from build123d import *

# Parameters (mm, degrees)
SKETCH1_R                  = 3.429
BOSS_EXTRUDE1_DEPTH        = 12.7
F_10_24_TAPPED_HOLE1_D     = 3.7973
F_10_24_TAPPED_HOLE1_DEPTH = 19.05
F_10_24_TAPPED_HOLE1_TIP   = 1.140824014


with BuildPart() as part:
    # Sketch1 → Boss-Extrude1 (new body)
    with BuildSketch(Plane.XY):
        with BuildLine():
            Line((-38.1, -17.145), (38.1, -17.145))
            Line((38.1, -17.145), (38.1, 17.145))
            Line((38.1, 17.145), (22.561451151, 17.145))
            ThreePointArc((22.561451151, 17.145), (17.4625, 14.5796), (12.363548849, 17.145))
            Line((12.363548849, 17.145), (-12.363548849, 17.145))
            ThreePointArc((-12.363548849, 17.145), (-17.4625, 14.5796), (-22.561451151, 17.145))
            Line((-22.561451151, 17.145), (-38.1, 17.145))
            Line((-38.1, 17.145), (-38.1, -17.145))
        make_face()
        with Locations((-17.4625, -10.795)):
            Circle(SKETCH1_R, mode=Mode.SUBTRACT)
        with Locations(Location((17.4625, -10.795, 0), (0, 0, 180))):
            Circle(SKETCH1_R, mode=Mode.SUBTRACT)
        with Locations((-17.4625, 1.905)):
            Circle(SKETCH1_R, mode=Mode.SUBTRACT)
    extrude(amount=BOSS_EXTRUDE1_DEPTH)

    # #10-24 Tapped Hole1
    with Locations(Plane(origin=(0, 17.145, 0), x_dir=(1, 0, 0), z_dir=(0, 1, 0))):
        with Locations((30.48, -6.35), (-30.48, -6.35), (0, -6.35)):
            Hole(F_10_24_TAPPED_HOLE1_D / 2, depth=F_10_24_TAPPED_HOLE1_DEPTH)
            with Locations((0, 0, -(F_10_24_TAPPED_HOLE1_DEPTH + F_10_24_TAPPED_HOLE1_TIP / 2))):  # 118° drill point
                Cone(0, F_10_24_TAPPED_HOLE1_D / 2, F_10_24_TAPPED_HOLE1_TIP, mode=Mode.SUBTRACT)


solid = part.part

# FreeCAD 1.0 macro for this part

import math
import FreeCAD as App
import Part
import Sketcher
from FreeCAD import Vector
Q = App.Units.Quantity

doc = App.newDocument("Part")
params = doc.addObject("Spreadsheet::Sheet", "Params")
for row, (alias, value) in enumerate([
    ("sketch1_diameter", "0.27 in"),
    ("sketch1_width", "3 in"),
    ("sketch1_radius", "0.25 in"),
    ("sketch1_height", "1.35 in"),
    ("pad1_length", "0.5 in"),
    ("hole_diameter", "0.1495 in"),
    ("hole_depth", "0.75 in"),
], start=1):
    params.set(f"A{row}", alias)
    params.set(f"B{row}", "=" + value)
    params.setAlias(f"B{row}", alias)

body = doc.addObject("PartDesign::Body", "Body")

# Sketch on XY plane
sketch1 = body.newObject("Sketcher::SketchObject", "Sketch")
sketch1.AttachmentSupport = (doc.getObject("XY_Plane"), [""])
sketch1.MapMode = "FlatFace"
sketch1.addGeometry([
    Part.LineSegment(Vector(-38.1, -17.145, 0), Vector(38.1, -17.145, 0)),  # 0
    Part.LineSegment(Vector(38.1, -17.145, 0), Vector(38.1, 17.145, 0)),  # 1
    Part.LineSegment(Vector(38.1, 17.145, 0), Vector(22.561451, 17.145, 0)),  # 2
    Part.ArcOfCircle(Part.Circle(Vector(17.4625, 20.9296, 0), Vector(0, 0, 1), 6.35), math.radians(-143.416047), math.radians(-36.583953)),  # 3
    Part.LineSegment(Vector(12.363549, 17.145, 0), Vector(-12.363549, 17.145, 0)),  # 4
    Part.ArcOfCircle(Part.Circle(Vector(-17.4625, 20.9296, 0), Vector(0, 0, 1), 6.35), math.radians(-143.416047), math.radians(-36.583953)),  # 5
    Part.LineSegment(Vector(-22.561451, 17.145, 0), Vector(-38.1, 17.145, 0)),  # 6
    Part.LineSegment(Vector(-38.1, 17.145, 0), Vector(-38.1, -17.145, 0)),  # 7
    Part.Circle(Vector(-17.4625, -10.795, 0), Vector(0, 0, 1), 3.429),  # 8
    Part.Circle(Vector(17.4625, -10.795, 0), Vector(0, 0, 1), 3.429),  # 9
    Part.Circle(Vector(-17.4625, 1.905, 0), Vector(0, 0, 1), 3.429),  # 10
], False)
sketch1.addConstraint([
    Sketcher.Constraint("Coincident", 0, 2, 1, 1),
    Sketcher.Constraint("Coincident", 1, 2, 2, 1),
    Sketcher.Constraint("Coincident", 2, 2, 3, 2),
    Sketcher.Constraint("Coincident", 3, 1, 4, 1),
    Sketcher.Constraint("Coincident", 4, 2, 5, 2),
    Sketcher.Constraint("Coincident", 5, 1, 6, 1),
    Sketcher.Constraint("Coincident", 6, 2, 7, 1),
    Sketcher.Constraint("Coincident", 7, 2, 0, 1),
    Sketcher.Constraint("Horizontal", 0),
    Sketcher.Constraint("Vertical", 1),
    Sketcher.Constraint("Horizontal", 2),
    Sketcher.Constraint("Horizontal", 4),
    Sketcher.Constraint("Horizontal", 6),
    Sketcher.Constraint("Vertical", 7),
    Sketcher.Constraint("Equal", 3, 5),
    Sketcher.Constraint("Equal", 8, 9),
    Sketcher.Constraint("Equal", 9, 10),
    Sketcher.Constraint("Symmetric", 0, 2, 6, 2, -1, 1),
    Sketcher.Constraint("Symmetric", 3, 3, 5, 3, -2),
    Sketcher.Constraint("Symmetric", 8, 3, 9, 3, -2),
    Sketcher.Constraint("Horizontal", 2, 2, 3, 1),
    Sketcher.Constraint("Horizontal", 4, 2, 5, 1),
    Sketcher.Constraint("Vertical", 5, 3, 8, 3),
    Sketcher.Constraint("Vertical", 8, 3, 10, 3),
    Sketcher.Constraint("Diameter", 8, Q("0.27 in")),
    Sketcher.Constraint("DistanceX", 0, 1, 0, 2, Q("3 in")),
    Sketcher.Constraint("Radius", 3, Q("0.25 in")),
    Sketcher.Constraint("DistanceY", 1, 1, 1, 2, Q("1.35 in")),
    Sketcher.Constraint("DistanceY", 8, 3, 10, 3, Q("0.5 in")),
    Sketcher.Constraint("DistanceY", 9, 3, 1, 2, Q("1.1 in")),
    Sketcher.Constraint("DistanceX", -1, 1, 3, 3, Q("0.6875 in")),
    Sketcher.Constraint("DistanceY", -1, 1, 3, 3, Q("0.824 in")),
])
sketch1.setExpression("Constraints[24]", "Params.sketch1_diameter")
sketch1.setExpression("Constraints[25]", "Params.sketch1_width")
sketch1.setExpression("Constraints[26]", "Params.sketch1_radius")
sketch1.setExpression("Constraints[27]", "Params.sketch1_height")
pad1 = body.newObject("PartDesign::Pad", "Pad")
pad1.Profile = sketch1
pad1.setExpression("Length", "Params.pad1_length")

# Sketch on XZ plane
sketch2 = body.newObject("Sketcher::SketchObject", "Sketch001")
sketch2.AttachmentSupport = (doc.getObject("XZ_Plane"), [""])
sketch2.MapMode = "FlatFace"
sketch2.AttachmentOffset = App.Placement(Vector(0, 0, -0.675 * 25.4), App.Rotation())
sketch2.addGeometry([
    Part.Circle(Vector(30.48, 6.35, 0), Vector(0, 0, 1), 1.89865),
    Part.Circle(Vector(-30.48, 6.35, 0), Vector(0, 0, 1), 1.89865),
    Part.Circle(Vector(0, 6.35, 0), Vector(0, 0, 1), 1.89865),
], False)
sketch2.addConstraint([
    Sketcher.Constraint("Equal", 0, 1),
    Sketcher.Constraint("Equal", 1, 2),
    Sketcher.Constraint("Symmetric", 0, 3, 1, 3, -2),
    Sketcher.Constraint("PointOnObject", 2, 3, -2),
    Sketcher.Constraint("Horizontal", 1, 3, 2, 3),
    Sketcher.Constraint("Diameter", 0, Q("0.1495 in")),
    Sketcher.Constraint("DistanceX", -1, 1, 0, 3, Q("1.2 in")),
    Sketcher.Constraint("DistanceY", -1, 1, 0, 3, Q("0.25 in")),
])
doc.recompute()
hole = body.newObject("PartDesign::Hole", "Hole")
hole.Profile = sketch2
hole.ThreadType = "None"
hole.setExpression("Diameter", "Params.hole_diameter")
hole.DepthType = "Dimension"
hole.setExpression("Depth", "Params.hole_depth")
hole.DrillPoint = "Angled"
hole.DrillPointAngle = 118
hole.Reversed = True

doc.recompute()
